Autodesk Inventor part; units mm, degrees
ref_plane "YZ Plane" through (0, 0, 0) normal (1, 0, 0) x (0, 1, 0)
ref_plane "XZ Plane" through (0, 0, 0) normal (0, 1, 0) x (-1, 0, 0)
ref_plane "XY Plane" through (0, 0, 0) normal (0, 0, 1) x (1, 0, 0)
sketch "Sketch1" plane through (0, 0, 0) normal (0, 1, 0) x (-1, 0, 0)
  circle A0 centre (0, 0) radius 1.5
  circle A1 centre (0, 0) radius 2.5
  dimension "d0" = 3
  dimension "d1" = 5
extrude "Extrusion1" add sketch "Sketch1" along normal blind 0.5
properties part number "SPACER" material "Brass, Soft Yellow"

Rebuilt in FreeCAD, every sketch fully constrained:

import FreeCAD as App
import Part
import Sketcher
from FreeCAD import Vector

doc = App.newDocument("Part")
body = doc.addObject("PartDesign::Body", "Body")

# Sketch on XZ plane
sketch1 = body.newObject("Sketcher::SketchObject", "Sketch")
sketch1.AttachmentSupport = (doc.getObject("XZ_Plane"), [""])
sketch1.MapMode = "FlatFace"
sketch1.addGeometry(Part.Circle(Vector(0, 0, 0), Vector(0, 0, 1), 2.5), False)
sketch1.addGeometry(Part.Circle(Vector(0, 0, 0), Vector(0, 0, 1), 1.5), False)
sketch1.addConstraint(Sketcher.Constraint("Coincident", 0, 3, -1, 1))
sketch1.addConstraint(Sketcher.Constraint("Coincident", 1, 3, -1, 1))
sketch1.addConstraint(Sketcher.Constraint("Diameter", 0, 5.0))
sketch1.addConstraint(Sketcher.Constraint("Diameter", 1, 3.0))
pad1 = body.newObject("PartDesign::Pad", "Pad")
pad1.Profile = sketch1
pad1.Length = 0.5
pad1.Reversed = True

doc.recompute()
